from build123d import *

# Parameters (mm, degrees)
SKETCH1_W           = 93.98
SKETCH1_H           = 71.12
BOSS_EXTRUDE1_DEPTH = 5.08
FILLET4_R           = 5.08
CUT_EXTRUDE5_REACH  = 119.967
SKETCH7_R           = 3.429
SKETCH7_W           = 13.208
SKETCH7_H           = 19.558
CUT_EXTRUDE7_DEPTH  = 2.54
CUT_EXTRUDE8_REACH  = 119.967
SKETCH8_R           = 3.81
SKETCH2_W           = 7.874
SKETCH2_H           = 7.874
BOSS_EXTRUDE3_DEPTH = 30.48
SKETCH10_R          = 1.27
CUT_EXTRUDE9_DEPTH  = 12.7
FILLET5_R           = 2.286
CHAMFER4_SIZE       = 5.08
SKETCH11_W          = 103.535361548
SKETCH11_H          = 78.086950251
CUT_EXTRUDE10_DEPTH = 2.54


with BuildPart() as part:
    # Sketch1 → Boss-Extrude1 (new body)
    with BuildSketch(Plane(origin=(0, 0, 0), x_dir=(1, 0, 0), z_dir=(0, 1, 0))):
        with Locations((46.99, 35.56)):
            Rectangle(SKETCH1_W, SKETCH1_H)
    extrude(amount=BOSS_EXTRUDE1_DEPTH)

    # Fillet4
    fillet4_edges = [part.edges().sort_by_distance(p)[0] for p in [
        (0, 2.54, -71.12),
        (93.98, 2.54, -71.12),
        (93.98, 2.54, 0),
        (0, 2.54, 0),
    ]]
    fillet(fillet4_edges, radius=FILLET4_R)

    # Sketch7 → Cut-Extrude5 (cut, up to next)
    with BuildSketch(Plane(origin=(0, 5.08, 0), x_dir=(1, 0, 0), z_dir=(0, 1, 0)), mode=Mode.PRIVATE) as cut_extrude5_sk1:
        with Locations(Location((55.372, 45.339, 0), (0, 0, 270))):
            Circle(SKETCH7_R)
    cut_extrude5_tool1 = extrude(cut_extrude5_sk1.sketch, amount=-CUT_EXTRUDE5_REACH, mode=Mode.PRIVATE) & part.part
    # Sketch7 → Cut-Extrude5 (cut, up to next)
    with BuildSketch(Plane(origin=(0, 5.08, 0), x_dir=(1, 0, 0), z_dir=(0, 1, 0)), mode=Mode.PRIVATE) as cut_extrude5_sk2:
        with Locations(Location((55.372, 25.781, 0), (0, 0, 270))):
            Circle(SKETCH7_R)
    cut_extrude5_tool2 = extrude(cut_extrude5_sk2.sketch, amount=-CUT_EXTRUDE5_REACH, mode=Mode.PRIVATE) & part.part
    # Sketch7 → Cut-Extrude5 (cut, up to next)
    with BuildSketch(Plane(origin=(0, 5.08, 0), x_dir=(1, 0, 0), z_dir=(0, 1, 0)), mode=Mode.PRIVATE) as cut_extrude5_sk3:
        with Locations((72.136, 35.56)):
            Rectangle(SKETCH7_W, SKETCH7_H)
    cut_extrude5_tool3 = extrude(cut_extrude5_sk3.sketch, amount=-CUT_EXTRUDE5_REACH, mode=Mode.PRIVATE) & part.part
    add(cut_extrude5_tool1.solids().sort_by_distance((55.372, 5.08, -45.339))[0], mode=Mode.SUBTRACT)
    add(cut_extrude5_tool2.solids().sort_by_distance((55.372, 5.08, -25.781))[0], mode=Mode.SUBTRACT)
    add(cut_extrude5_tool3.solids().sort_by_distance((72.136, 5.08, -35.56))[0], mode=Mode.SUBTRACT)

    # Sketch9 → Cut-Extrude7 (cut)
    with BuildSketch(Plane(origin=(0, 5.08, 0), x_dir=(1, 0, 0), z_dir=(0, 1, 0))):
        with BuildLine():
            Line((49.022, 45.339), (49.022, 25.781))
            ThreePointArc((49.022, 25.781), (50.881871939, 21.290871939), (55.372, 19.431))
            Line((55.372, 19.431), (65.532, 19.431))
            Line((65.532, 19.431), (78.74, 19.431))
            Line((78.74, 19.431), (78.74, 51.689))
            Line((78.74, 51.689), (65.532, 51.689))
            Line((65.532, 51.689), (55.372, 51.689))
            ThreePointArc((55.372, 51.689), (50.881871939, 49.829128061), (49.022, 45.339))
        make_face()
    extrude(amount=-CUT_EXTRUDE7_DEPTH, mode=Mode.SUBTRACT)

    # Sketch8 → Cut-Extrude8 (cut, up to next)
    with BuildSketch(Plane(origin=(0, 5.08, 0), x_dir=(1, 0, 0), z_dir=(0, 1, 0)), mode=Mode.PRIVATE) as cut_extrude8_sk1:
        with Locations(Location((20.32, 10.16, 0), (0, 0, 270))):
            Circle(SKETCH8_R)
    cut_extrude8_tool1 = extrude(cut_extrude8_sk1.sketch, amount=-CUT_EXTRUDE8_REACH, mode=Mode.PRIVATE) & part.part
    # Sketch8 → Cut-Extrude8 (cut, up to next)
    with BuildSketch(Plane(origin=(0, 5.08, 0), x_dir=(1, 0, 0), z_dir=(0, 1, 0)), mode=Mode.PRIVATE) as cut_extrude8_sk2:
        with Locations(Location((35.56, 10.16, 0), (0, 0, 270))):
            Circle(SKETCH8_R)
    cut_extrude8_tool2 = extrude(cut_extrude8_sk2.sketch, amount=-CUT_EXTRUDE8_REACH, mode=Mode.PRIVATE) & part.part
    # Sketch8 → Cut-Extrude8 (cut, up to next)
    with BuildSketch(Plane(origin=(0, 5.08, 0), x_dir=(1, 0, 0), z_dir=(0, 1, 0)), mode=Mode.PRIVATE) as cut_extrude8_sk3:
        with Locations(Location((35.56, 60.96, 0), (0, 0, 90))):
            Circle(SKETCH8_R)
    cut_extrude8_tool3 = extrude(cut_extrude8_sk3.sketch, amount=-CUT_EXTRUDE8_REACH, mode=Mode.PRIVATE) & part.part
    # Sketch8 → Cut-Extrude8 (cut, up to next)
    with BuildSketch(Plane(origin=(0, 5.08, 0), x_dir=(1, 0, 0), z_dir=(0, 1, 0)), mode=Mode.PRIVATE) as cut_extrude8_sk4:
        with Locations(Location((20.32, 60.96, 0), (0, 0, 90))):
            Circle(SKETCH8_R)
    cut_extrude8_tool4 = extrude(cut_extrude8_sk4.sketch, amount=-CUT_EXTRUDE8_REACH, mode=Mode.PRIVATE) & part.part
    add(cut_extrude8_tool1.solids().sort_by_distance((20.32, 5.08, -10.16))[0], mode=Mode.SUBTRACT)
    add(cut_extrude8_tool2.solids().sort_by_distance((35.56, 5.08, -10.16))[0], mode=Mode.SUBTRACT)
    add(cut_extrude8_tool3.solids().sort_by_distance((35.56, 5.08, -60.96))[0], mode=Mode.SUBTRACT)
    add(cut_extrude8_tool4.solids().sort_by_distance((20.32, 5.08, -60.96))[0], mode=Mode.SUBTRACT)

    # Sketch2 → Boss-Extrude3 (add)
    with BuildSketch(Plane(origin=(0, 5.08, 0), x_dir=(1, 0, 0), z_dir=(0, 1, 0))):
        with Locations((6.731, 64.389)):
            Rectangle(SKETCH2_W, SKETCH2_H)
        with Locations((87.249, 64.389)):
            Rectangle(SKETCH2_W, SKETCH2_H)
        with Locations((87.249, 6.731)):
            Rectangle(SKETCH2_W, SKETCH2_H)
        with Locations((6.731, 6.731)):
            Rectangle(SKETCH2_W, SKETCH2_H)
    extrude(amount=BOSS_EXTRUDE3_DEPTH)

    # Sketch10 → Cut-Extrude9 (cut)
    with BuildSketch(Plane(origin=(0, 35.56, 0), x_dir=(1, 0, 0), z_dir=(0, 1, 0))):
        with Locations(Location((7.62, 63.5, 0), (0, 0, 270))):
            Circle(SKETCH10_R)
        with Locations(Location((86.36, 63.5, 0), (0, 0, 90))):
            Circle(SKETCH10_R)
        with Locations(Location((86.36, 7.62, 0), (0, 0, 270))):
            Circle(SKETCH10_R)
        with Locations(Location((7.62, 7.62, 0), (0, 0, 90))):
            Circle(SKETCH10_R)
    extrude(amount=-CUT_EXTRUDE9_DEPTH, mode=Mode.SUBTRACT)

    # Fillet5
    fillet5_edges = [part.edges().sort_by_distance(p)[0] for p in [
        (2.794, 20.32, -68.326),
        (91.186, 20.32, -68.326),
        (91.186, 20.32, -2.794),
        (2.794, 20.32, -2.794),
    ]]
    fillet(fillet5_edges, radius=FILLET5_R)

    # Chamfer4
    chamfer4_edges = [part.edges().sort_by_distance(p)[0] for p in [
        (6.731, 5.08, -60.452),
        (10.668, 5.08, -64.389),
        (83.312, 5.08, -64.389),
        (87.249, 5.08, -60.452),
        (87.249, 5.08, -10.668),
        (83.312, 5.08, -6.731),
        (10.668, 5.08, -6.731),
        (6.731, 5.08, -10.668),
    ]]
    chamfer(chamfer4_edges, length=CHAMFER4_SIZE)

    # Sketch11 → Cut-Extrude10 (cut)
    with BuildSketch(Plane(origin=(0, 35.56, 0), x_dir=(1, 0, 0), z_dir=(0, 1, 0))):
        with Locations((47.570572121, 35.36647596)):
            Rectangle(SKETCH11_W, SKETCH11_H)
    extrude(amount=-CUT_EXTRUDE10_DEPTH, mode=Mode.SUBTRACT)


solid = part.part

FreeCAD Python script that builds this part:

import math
import FreeCAD as App
import Part
import Sketcher

V = App.Vector
Q = App.Units.Quantity


def edges_at(feature, points):
    """Names of the edges that pass closest to the given points."""
    edges = feature.Shape.Edges
    near = lambda p: min(range(len(edges)), key=lambda i: edges[i].distToShape(Part.Vertex(*p))[0])
    return sorted({f"Edge{near(p) + 1}" for p in points})


def add_polygon(sketch, points):
    """Adds a closed chain of lines whose ends are joined by coincident constraints."""
    first, n = sketch.GeometryCount, len(points)
    for a, b in zip(points, points[1:] + points[:1]):
        sketch.addGeometry(Part.LineSegment(App.Vector(*a, 0), App.Vector(*b, 0)), False)
    for i in range(n):
        sketch.addConstraint(Sketcher.Constraint("Coincident", first + i, 2, first + (i + 1) % n, 1))

doc = App.newDocument("Part")
body = doc.addObject("PartDesign::Body", "Body")

# Sketch on XZ plane
sketch1 = body.newObject("Sketcher::SketchObject", "Sketch")
sketch1.AttachmentSupport = (doc.getObject("XZ_Plane"), [""])
sketch1.MapMode = "FlatFace"
add_polygon(sketch1, [(0, -71.12), (0, 0), (93.98, 0), (93.98, -71.12)])  # lines 0-3
sketch1.addConstraint(Sketcher.Constraint("Vertical", 0))
sketch1.addConstraint(Sketcher.Constraint("Horizontal", 1))
sketch1.addConstraint(Sketcher.Constraint("Vertical", 2))
sketch1.addConstraint(Sketcher.Constraint("Horizontal", 3))
sketch1.addConstraint(Sketcher.Constraint("Coincident", 0, 2, -1, 1))
sketch1.addConstraint(Sketcher.Constraint("DistanceX", 1, 1, 1, 2, Q("3.7 in")))
sketch1.addConstraint(Sketcher.Constraint("DistanceY", 0, 1, 0, 2, Q("2.8 in")))
pad1 = body.newObject("PartDesign::Pad", "Pad")
pad1.Profile = sketch1
pad1.Length = Q("0.2 in")
pad1.Reversed = True
doc.recompute()

fillet = body.newObject("PartDesign::Fillet", "Fillet")
fillet.Base = (pad1, edges_at(pad1, [
    (0, 2.54, -71.12),
    (93.98, 2.54, -71.12),
    (93.98, 2.54, 0),
    (0, 2.54, 0),
]))
fillet.Radius = Q("0.2 in")

# Sketch on XZ plane
sketch2 = body.newObject("Sketcher::SketchObject", "Sketch001")
sketch2.AttachmentSupport = (doc.getObject("XZ_Plane"), [""])
sketch2.MapMode = "FlatFace"
sketch2.AttachmentOffset = App.Placement(V(0, 0, -0.2 * 25.4), App.Rotation())
sketch2.addGeometry(Part.Circle(V(55.372, -45.339, 0), V(0, 0, 1), 3.429), False)
sketch2.addConstraint(Sketcher.Constraint("Diameter", 0, Q("0.27 in")))
sketch2.addConstraint(Sketcher.Constraint("DistanceX", -1, 1, 0, 3, Q("2.18 in")))
sketch2.addConstraint(Sketcher.Constraint("DistanceY", 0, 3, -1, 1, Q("1.785 in")))
pocket1 = body.newObject("PartDesign::Pocket", "Pocket")
pocket1.Profile = sketch2
pocket1.Type = "UpToFirst"
pocket1.Reversed = True

# Sketch on XZ plane
sketch3 = body.newObject("Sketcher::SketchObject", "Sketch002")
sketch3.AttachmentSupport = (doc.getObject("XZ_Plane"), [""])
sketch3.MapMode = "FlatFace"
sketch3.AttachmentOffset = App.Placement(V(0, 0, -0.2 * 25.4), App.Rotation())
sketch3.addGeometry(Part.Circle(V(55.372, -25.781, 0), V(0, 0, 1), 3.429), False)
sketch3.addConstraint(Sketcher.Constraint("Diameter", 0, Q("0.27 in")))
sketch3.addConstraint(Sketcher.Constraint("DistanceX", -1, 1, 0, 3, Q("2.18 in")))
sketch3.addConstraint(Sketcher.Constraint("DistanceY", 0, 3, -1, 1, Q("1.015 in")))
pocket2 = body.newObject("PartDesign::Pocket", "Pocket001")
pocket2.Profile = sketch3
pocket2.Type = "UpToFirst"
pocket2.Reversed = True

# Sketch on XZ plane
sketch4 = body.newObject("Sketcher::SketchObject", "Sketch003")
sketch4.AttachmentSupport = (doc.getObject("XZ_Plane"), [""])
sketch4.MapMode = "FlatFace"
sketch4.AttachmentOffset = App.Placement(V(0, 0, -0.2 * 25.4), App.Rotation())
add_polygon(sketch4, [(65.532, -45.339), (65.532, -25.781), (78.74, -25.781), (78.74, -45.339)])  # lines 0-3
sketch4.addConstraint(Sketcher.Constraint("Vertical", 0))
sketch4.addConstraint(Sketcher.Constraint("Horizontal", 1))
sketch4.addConstraint(Sketcher.Constraint("Vertical", 2))
sketch4.addConstraint(Sketcher.Constraint("Horizontal", 3))
sketch4.addConstraint(Sketcher.Constraint("DistanceX", 1, 1, 1, 2, Q("0.52 in")))
sketch4.addConstraint(Sketcher.Constraint("DistanceY", 0, 1, 0, 2, Q("0.77 in")))
sketch4.addConstraint(Sketcher.Constraint("DistanceX", -1, 1, 1, 2, Q("3.1 in")))
sketch4.addConstraint(Sketcher.Constraint("DistanceY", 0, 2, -1, 1, Q("1.015 in")))
pocket3 = body.newObject("PartDesign::Pocket", "Pocket002")
pocket3.Profile = sketch4
pocket3.Type = "UpToFirst"
pocket3.Reversed = True

# Sketch on XZ plane
sketch5 = body.newObject("Sketcher::SketchObject", "Sketch004")
sketch5.AttachmentSupport = (doc.getObject("XZ_Plane"), [""])
sketch5.MapMode = "FlatFace"
sketch5.AttachmentOffset = App.Placement(V(0, 0, -0.2 * 25.4), App.Rotation())
sketch5.addGeometry(Part.LineSegment(V(49.022, -45.339, 0), V(49.022, -25.781, 0)), False)
sketch5.addGeometry(Part.ArcOfCircle(Part.Circle(V(55.372, -25.781, 0), V(0, 0, 1), 6.35), math.radians(90), math.radians(180)), False)
sketch5.addGeometry(Part.LineSegment(V(55.372, -19.431, 0), V(78.74, -19.431, 0)), False)
sketch5.addGeometry(Part.LineSegment(V(78.74, -19.431, 0), V(78.74, -51.689, 0)), False)
sketch5.addGeometry(Part.LineSegment(V(78.74, -51.689, 0), V(55.372, -51.689, 0)), False)
sketch5.addGeometry(Part.ArcOfCircle(Part.Circle(V(55.372, -45.339, 0), V(0, 0, 1), 6.35), math.radians(180), math.radians(270)), False)
sketch5.addConstraint(Sketcher.Constraint("Tangent", 0, 2, 1, 2))
sketch5.addConstraint(Sketcher.Constraint("Tangent", 1, 1, 2, 1))
sketch5.addConstraint(Sketcher.Constraint("Coincident", 2, 2, 3, 1))
sketch5.addConstraint(Sketcher.Constraint("Coincident", 3, 2, 4, 1))
sketch5.addConstraint(Sketcher.Constraint("Tangent", 4, 2, 5, 2))
sketch5.addConstraint(Sketcher.Constraint("Tangent", 5, 1, 0, 1))
sketch5.addConstraint(Sketcher.Constraint("Vertical", 0))
sketch5.addConstraint(Sketcher.Constraint("Horizontal", 2))
sketch5.addConstraint(Sketcher.Constraint("Vertical", 3))
sketch5.addConstraint(Sketcher.Constraint("Horizontal", 4))
sketch5.addConstraint(Sketcher.Constraint("Equal", 1, 5))
sketch5.addConstraint(Sketcher.Constraint("Radius", 1, Q("0.25 in")))
sketch5.addConstraint(Sketcher.Constraint("DistanceX", 2, 1, 2, 2, Q("0.92 in")))
sketch5.addConstraint(Sketcher.Constraint("DistanceY", 0, 1, 0, 2, Q("0.77 in")))
sketch5.addConstraint(Sketcher.Constraint("DistanceX", -1, 1, 2, 2, Q("3.1 in")))
sketch5.addConstraint(Sketcher.Constraint("DistanceY", 1, 3, -1, 1, Q("1.015 in")))
pocket4 = body.newObject("PartDesign::Pocket", "Pocket003")
pocket4.Profile = sketch5
pocket4.Length = Q("0.1 in")
pocket4.Reversed = True

# Sketch on XZ plane
sketch6 = body.newObject("Sketcher::SketchObject", "Sketch005")
sketch6.AttachmentSupport = (doc.getObject("XZ_Plane"), [""])
sketch6.MapMode = "FlatFace"
sketch6.AttachmentOffset = App.Placement(V(0, 0, -0.2 * 25.4), App.Rotation())
sketch6.addGeometry(Part.Circle(V(20.32, -10.16, 0), V(0, 0, 1), 3.81), False)
sketch6.addConstraint(Sketcher.Constraint("Diameter", 0, Q("0.3 in")))
sketch6.addConstraint(Sketcher.Constraint("DistanceX", -1, 1, 0, 3, Q("0.8 in")))
sketch6.addConstraint(Sketcher.Constraint("DistanceY", 0, 3, -1, 1, Q("0.4 in")))
pocket5 = body.newObject("PartDesign::Pocket", "Pocket004")
pocket5.Profile = sketch6
pocket5.Type = "UpToFirst"
pocket5.Reversed = True

# Sketch on XZ plane
sketch7 = body.newObject("Sketcher::SketchObject", "Sketch006")
sketch7.AttachmentSupport = (doc.getObject("XZ_Plane"), [""])
sketch7.MapMode = "FlatFace"
sketch7.AttachmentOffset = App.Placement(V(0, 0, -0.2 * 25.4), App.Rotation())
sketch7.addGeometry(Part.Circle(V(35.56, -10.16, 0), V(0, 0, 1), 3.81), False)
sketch7.addConstraint(Sketcher.Constraint("Diameter", 0, Q("0.3 in")))
sketch7.addConstraint(Sketcher.Constraint("DistanceX", -1, 1, 0, 3, Q("1.4 in")))
sketch7.addConstraint(Sketcher.Constraint("DistanceY", 0, 3, -1, 1, Q("0.4 in")))
pocket6 = body.newObject("PartDesign::Pocket", "Pocket005")
pocket6.Profile = sketch7
pocket6.Type = "UpToFirst"
pocket6.Reversed = True

# Sketch on XZ plane
sketch8 = body.newObject("Sketcher::SketchObject", "Sketch007")
sketch8.AttachmentSupport = (doc.getObject("XZ_Plane"), [""])
sketch8.MapMode = "FlatFace"
sketch8.AttachmentOffset = App.Placement(V(0, 0, -0.2 * 25.4), App.Rotation())
sketch8.addGeometry(Part.Circle(V(35.56, -60.96, 0), V(0, 0, 1), 3.81), False)
sketch8.addConstraint(Sketcher.Constraint("Diameter", 0, Q("0.3 in")))
sketch8.addConstraint(Sketcher.Constraint("DistanceX", -1, 1, 0, 3, Q("1.4 in")))
sketch8.addConstraint(Sketcher.Constraint("DistanceY", 0, 3, -1, 1, Q("2.4 in")))
pocket7 = body.newObject("PartDesign::Pocket", "Pocket006")
pocket7.Profile = sketch8
pocket7.Type = "UpToFirst"
pocket7.Reversed = True

# Sketch on XZ plane
sketch9 = body.newObject("Sketcher::SketchObject", "Sketch008")
sketch9.AttachmentSupport = (doc.getObject("XZ_Plane"), [""])
sketch9.MapMode = "FlatFace"
sketch9.AttachmentOffset = App.Placement(V(0, 0, -0.2 * 25.4), App.Rotation())
sketch9.addGeometry(Part.Circle(V(20.32, -60.96, 0), V(0, 0, 1), 3.81), False)
sketch9.addConstraint(Sketcher.Constraint("Diameter", 0, Q("0.3 in")))
sketch9.addConstraint(Sketcher.Constraint("DistanceX", -1, 1, 0, 3, Q("0.8 in")))
sketch9.addConstraint(Sketcher.Constraint("DistanceY", 0, 3, -1, 1, Q("2.4 in")))
pocket8 = body.newObject("PartDesign::Pocket", "Pocket007")
pocket8.Profile = sketch9
pocket8.Type = "UpToFirst"
pocket8.Reversed = True

# Sketch on XZ plane
sketch10 = body.newObject("Sketcher::SketchObject", "Sketch009")
sketch10.AttachmentSupport = (doc.getObject("XZ_Plane"), [""])
sketch10.MapMode = "FlatFace"
sketch10.AttachmentOffset = App.Placement(V(0, 0, -0.2 * 25.4), App.Rotation())
add_polygon(sketch10, [(2.794, -68.326), (2.794, -60.452), (10.668, -60.452), (10.668, -68.326)])  # lines 0-3
add_polygon(sketch10, [(83.312, -68.326), (83.312, -60.452), (91.186, -60.452), (91.186, -68.326)])  # lines 4-7
add_polygon(sketch10, [(83.312, -10.668), (83.312, -2.794), (91.186, -2.794), (91.186, -10.668)])  # lines 8-11
add_polygon(sketch10, [(2.794, -10.668), (2.794, -2.794), (10.668, -2.794), (10.668, -10.668)])  # lines 12-15
sketch10.addConstraint(Sketcher.Constraint("Vertical", 0))
sketch10.addConstraint(Sketcher.Constraint("Horizontal", 1))
sketch10.addConstraint(Sketcher.Constraint("Vertical", 2))
sketch10.addConstraint(Sketcher.Constraint("Horizontal", 3))
sketch10.addConstraint(Sketcher.Constraint("Vertical", 4))
sketch10.addConstraint(Sketcher.Constraint("Horizontal", 5))
sketch10.addConstraint(Sketcher.Constraint("Vertical", 6))
sketch10.addConstraint(Sketcher.Constraint("Horizontal", 7))
sketch10.addConstraint(Sketcher.Constraint("Vertical", 8))
sketch10.addConstraint(Sketcher.Constraint("Horizontal", 9))
sketch10.addConstraint(Sketcher.Constraint("Vertical", 10))
sketch10.addConstraint(Sketcher.Constraint("Horizontal", 11))
sketch10.addConstraint(Sketcher.Constraint("Vertical", 12))
sketch10.addConstraint(Sketcher.Constraint("Horizontal", 13))
sketch10.addConstraint(Sketcher.Constraint("Vertical", 14))
sketch10.addConstraint(Sketcher.Constraint("Horizontal", 15))
sketch10.addConstraint(Sketcher.Constraint("Horizontal", 1, 2, 4, 2))
sketch10.addConstraint(Sketcher.Constraint("Horizontal", 3, 2, 6, 2))
sketch10.addConstraint(Sketcher.Constraint("Horizontal", 9, 2, 12, 2))
sketch10.addConstraint(Sketcher.Constraint("Horizontal", 11, 2, 14, 2))
sketch10.addConstraint(Sketcher.Constraint("Vertical", 7, 2, 8, 2))
sketch10.addConstraint(Sketcher.Constraint("Vertical", 6, 2, 9, 2))
sketch10.addConstraint(Sketcher.Constraint("Vertical", 3, 2, 12, 2))
sketch10.addConstraint(Sketcher.Constraint("Vertical", 2, 2, 13, 2))
sketch10.addConstraint(Sketcher.Constraint("Equal", 3, 5))
sketch10.addConstraint(Sketcher.Constraint("Equal", 15, 0))
sketch10.addConstraint(Sketcher.Constraint("Equal", 6, 8))
sketch10.addConstraint(Sketcher.Constraint("DistanceX", 1, 1, 1, 2, Q("0.31 in")))
sketch10.addConstraint(Sketcher.Constraint("DistanceX", -1, 1, 0, 2, Q("0.11 in")))
sketch10.addConstraint(Sketcher.Constraint("DistanceY", 0, 2, -1, 1, Q("2.38 in")))
sketch10.addConstraint(Sketcher.Constraint("DistanceX", -1, 1, 4, 2, Q("3.28 in")))
sketch10.addConstraint(Sketcher.Constraint("DistanceY", 8, 2, -1, 1, Q("0.11 in")))
pad2 = body.newObject("PartDesign::Pad", "Pad001")
pad2.Profile = sketch10
pad2.Length = Q("1.2 in")
pad2.Reversed = True

# Sketch on XZ plane
sketch11 = body.newObject("Sketcher::SketchObject", "Sketch010")
sketch11.AttachmentSupport = (doc.getObject("XZ_Plane"), [""])
sketch11.MapMode = "FlatFace"
sketch11.AttachmentOffset = App.Placement(V(0, 0, -1.4 * 25.4), App.Rotation())
sketch11.addGeometry(Part.Circle(V(7.62, -63.5, 0), V(0, 0, 1), 1.27), False)
sketch11.addGeometry(Part.Circle(V(86.36, -63.5, 0), V(0, 0, 1), 1.27), False)
sketch11.addGeometry(Part.Circle(V(86.36, -7.62, 0), V(0, 0, 1), 1.27), False)
sketch11.addGeometry(Part.Circle(V(7.62, -7.62, 0), V(0, 0, 1), 1.27), False)
sketch11.addConstraint(Sketcher.Constraint("Equal", 0, 1))
sketch11.addConstraint(Sketcher.Constraint("Equal", 1, 2))
sketch11.addConstraint(Sketcher.Constraint("Equal", 2, 3))
sketch11.addConstraint(Sketcher.Constraint("Horizontal", 0, 3, 1, 3))
sketch11.addConstraint(Sketcher.Constraint("Horizontal", 2, 3, 3, 3))
sketch11.addConstraint(Sketcher.Constraint("Vertical", 1, 3, 2, 3))
sketch11.addConstraint(Sketcher.Constraint("Vertical", 0, 3, 3, 3))
sketch11.addConstraint(Sketcher.Constraint("Diameter", 0, Q("0.1 in")))
sketch11.addConstraint(Sketcher.Constraint("DistanceX", -1, 1, 0, 3, Q("0.3 in")))
sketch11.addConstraint(Sketcher.Constraint("DistanceY", 0, 3, -1, 1, Q("2.5 in")))
sketch11.addConstraint(Sketcher.Constraint("DistanceX", -1, 1, 1, 3, Q("3.4 in")))
sketch11.addConstraint(Sketcher.Constraint("DistanceY", 2, 3, -1, 1, Q("0.3 in")))
pocket9 = body.newObject("PartDesign::Pocket", "Pocket008")
pocket9.Profile = sketch11
pocket9.Length = Q("0.5 in")
pocket9.Reversed = True
doc.recompute()

fillet2 = body.newObject("PartDesign::Fillet", "Fillet001")
fillet2.Base = (pocket9, edges_at(pocket9, [
    (2.794, 20.32, -68.326),
    (91.186, 20.32, -68.326),
    (91.186, 20.32, -2.794),
    (2.794, 20.32, -2.794),
]))
fillet2.Radius = Q("0.09 in")
doc.recompute()

chamfer = body.newObject("PartDesign::Chamfer", "Chamfer")
chamfer.Base = (fillet2, edges_at(fillet2, [
    (6.731, 5.08, -60.452),
    (10.668, 5.08, -64.389),
    (83.312, 5.08, -64.389),
    (87.249, 5.08, -60.452),
    (87.249, 5.08, -10.668),
    (83.312, 5.08, -6.731),
    (10.668, 5.08, -6.731),
    (6.731, 5.08, -10.668),
]))
chamfer.Size = Q("0.2 in")

# Sketch on XZ plane
sketch12 = body.newObject("Sketcher::SketchObject", "Sketch011")
sketch12.AttachmentSupport = (doc.getObject("XZ_Plane"), [""])
sketch12.MapMode = "FlatFace"
sketch12.AttachmentOffset = App.Placement(V(0, 0, -1.4 * 25.4), App.Rotation())
add_polygon(sketch12, [(-4.197109, -74.409951), (-4.197109, 3.676999), (99.338253, 3.676999), (99.338253, -74.409951)])  # lines 0-3
sketch12.addConstraint(Sketcher.Constraint("Vertical", 0))
sketch12.addConstraint(Sketcher.Constraint("Horizontal", 1))
sketch12.addConstraint(Sketcher.Constraint("Vertical", 2))
sketch12.addConstraint(Sketcher.Constraint("Horizontal", 3))
sketch12.addConstraint(Sketcher.Constraint("DistanceX", 1, 1, 1, 2, 103.535362))
sketch12.addConstraint(Sketcher.Constraint("DistanceY", 0, 1, 0, 2, 78.08695))
sketch12.addConstraint(Sketcher.Constraint("DistanceY", -1, 1, 0, 2, 3.676999))
sketch12.addConstraint(Sketcher.Constraint("DistanceX", 0, 2, -1, 1, 4.197109))
pocket10 = body.newObject("PartDesign::Pocket", "Pocket009")
pocket10.Profile = sketch12
pocket10.Length = Q("0.1 in")
pocket10.Reversed = True

doc.recompute()
